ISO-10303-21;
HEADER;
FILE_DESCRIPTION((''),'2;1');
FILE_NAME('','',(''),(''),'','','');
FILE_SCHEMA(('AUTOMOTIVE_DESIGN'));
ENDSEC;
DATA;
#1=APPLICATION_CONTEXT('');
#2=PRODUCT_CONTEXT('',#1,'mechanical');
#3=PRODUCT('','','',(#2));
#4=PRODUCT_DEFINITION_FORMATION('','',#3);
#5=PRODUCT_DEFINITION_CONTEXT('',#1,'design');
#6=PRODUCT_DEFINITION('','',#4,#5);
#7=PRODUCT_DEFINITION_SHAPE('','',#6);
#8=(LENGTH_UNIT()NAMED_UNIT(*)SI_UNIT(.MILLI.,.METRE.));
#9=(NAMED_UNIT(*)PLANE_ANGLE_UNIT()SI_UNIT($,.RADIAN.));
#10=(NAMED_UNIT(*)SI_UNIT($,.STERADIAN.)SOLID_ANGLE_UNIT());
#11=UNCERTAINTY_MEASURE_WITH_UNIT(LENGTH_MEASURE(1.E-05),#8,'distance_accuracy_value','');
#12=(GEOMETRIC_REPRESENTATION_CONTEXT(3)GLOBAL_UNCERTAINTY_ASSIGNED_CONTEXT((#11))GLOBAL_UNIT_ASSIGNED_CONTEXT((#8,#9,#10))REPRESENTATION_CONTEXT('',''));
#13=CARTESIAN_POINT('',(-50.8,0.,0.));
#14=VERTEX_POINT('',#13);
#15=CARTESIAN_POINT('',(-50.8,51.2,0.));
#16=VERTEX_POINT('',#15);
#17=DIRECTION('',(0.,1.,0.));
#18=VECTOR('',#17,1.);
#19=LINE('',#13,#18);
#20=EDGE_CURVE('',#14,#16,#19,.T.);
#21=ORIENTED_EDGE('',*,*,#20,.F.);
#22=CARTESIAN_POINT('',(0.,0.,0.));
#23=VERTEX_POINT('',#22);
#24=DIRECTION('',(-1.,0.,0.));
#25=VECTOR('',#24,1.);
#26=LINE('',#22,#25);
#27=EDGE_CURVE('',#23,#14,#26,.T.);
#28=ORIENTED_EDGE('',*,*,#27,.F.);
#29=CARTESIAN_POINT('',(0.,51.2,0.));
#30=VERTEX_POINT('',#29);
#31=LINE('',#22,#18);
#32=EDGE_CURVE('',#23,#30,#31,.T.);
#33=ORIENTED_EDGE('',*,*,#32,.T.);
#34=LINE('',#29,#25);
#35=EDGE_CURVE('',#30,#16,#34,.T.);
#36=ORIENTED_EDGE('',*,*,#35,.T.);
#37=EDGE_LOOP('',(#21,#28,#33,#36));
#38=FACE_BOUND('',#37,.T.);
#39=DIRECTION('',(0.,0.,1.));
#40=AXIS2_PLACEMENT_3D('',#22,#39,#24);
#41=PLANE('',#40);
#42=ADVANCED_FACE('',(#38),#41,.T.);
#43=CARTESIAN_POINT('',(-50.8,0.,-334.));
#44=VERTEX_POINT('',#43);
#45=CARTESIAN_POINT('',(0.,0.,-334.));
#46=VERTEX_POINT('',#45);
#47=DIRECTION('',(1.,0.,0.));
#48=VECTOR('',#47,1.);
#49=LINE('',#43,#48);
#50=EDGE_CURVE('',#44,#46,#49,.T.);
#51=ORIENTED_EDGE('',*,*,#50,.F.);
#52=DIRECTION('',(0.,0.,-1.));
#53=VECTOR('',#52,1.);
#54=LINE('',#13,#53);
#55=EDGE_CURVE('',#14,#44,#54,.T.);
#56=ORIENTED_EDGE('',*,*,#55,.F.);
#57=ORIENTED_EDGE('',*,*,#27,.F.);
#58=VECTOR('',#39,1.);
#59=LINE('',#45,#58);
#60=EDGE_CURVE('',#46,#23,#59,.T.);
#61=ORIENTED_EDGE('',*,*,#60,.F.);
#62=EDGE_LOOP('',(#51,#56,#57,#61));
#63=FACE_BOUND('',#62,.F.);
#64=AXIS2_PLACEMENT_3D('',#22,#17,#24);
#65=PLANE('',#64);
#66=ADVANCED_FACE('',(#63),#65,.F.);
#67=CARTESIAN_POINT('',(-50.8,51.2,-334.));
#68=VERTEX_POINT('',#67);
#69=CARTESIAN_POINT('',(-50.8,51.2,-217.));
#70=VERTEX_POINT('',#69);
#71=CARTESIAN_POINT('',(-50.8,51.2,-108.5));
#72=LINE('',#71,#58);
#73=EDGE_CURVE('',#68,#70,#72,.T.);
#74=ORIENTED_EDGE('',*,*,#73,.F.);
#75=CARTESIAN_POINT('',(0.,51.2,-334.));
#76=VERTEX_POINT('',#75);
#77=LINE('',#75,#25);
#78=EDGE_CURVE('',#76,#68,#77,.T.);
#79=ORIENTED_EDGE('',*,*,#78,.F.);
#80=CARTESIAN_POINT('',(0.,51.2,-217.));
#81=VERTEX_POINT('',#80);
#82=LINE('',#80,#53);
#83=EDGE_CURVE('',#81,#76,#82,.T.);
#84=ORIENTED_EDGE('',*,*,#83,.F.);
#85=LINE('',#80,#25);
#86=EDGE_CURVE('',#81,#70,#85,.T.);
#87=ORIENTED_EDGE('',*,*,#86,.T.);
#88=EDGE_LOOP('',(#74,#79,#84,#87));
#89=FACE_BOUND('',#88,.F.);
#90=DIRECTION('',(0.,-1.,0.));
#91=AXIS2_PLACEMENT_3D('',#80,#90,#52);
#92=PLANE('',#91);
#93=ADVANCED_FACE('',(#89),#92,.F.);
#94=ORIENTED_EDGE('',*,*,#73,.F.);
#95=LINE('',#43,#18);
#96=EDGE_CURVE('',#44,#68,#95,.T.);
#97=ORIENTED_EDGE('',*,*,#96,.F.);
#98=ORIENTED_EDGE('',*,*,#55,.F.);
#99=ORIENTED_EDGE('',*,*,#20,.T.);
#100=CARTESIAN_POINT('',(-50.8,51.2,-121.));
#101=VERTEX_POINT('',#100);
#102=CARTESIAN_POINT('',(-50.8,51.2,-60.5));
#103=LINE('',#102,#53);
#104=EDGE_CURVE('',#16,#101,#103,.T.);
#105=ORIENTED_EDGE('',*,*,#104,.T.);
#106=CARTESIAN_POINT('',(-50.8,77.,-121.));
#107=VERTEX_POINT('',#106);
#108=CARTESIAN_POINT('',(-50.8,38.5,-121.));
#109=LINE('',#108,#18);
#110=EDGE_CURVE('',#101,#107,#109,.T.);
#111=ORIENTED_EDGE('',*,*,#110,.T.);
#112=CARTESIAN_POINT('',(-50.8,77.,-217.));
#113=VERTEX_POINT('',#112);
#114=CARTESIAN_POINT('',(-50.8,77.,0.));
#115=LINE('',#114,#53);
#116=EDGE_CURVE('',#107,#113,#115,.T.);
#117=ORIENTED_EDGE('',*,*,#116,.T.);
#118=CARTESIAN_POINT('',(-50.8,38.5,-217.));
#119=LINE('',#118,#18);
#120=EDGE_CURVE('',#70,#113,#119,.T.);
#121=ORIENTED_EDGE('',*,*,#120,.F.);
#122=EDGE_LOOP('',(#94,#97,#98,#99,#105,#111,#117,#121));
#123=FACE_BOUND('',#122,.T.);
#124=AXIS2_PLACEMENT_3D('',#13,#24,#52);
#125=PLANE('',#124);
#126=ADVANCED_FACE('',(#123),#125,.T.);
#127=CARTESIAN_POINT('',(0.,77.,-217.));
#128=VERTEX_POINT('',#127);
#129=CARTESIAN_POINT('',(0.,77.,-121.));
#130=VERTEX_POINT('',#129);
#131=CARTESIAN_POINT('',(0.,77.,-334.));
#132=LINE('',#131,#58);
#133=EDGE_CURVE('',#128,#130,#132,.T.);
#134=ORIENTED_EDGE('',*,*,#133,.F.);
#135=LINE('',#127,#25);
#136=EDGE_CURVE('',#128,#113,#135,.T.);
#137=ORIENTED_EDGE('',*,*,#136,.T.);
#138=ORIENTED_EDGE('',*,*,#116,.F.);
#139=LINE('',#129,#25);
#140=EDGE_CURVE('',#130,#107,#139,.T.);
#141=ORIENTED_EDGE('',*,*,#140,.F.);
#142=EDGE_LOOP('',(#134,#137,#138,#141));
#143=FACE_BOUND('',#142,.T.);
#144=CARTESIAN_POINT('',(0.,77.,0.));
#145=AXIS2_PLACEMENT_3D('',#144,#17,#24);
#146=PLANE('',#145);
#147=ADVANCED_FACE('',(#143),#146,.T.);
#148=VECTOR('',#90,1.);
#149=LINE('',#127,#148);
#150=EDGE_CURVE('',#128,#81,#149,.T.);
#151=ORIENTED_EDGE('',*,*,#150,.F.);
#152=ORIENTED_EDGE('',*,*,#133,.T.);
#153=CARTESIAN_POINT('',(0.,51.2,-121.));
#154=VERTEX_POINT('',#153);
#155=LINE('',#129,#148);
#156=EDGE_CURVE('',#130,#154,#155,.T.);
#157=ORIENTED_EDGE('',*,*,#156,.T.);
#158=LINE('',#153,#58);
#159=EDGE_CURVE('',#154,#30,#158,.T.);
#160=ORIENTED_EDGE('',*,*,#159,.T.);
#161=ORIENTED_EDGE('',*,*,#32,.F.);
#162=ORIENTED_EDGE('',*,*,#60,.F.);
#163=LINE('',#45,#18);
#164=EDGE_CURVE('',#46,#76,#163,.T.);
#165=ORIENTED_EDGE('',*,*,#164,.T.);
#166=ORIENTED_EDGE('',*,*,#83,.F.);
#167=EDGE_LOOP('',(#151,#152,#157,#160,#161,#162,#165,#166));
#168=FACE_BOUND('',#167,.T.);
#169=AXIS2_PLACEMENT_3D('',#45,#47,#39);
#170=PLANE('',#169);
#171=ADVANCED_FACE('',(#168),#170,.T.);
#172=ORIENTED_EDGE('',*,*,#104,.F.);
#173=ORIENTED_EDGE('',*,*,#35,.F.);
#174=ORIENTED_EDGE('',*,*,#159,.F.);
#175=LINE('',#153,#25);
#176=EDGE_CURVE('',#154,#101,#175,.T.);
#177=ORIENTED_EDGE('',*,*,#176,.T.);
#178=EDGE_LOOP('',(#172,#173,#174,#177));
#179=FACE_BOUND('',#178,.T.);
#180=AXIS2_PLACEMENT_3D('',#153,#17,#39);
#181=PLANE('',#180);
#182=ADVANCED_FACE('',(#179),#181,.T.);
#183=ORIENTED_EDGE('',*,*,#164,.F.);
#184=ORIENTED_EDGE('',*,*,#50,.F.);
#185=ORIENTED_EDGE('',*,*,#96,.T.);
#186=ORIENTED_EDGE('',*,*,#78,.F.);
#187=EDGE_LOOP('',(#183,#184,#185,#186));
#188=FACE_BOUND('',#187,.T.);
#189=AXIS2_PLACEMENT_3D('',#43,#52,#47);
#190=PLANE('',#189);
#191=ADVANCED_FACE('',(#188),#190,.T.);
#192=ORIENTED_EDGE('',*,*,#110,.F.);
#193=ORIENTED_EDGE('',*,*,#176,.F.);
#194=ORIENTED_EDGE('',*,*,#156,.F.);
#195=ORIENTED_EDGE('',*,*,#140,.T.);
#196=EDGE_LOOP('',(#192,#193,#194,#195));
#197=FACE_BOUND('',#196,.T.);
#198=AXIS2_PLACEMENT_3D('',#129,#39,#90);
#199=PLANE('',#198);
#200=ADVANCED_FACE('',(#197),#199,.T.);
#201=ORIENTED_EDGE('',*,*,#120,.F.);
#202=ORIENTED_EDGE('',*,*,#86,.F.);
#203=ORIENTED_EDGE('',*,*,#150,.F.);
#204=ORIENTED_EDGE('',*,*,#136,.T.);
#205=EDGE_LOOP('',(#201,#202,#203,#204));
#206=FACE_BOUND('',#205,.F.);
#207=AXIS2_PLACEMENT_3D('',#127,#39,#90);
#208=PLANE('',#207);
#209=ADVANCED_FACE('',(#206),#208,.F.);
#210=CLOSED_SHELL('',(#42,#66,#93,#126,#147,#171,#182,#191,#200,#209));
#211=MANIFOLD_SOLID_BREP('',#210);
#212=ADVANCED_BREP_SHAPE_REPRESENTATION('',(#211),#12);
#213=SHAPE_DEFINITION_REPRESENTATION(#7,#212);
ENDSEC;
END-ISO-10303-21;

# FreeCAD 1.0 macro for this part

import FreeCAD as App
import Part
import Sketcher

V = App.Vector

doc = App.newDocument("Part")
body = doc.addObject("PartDesign::Body", "Body")

sketch1 = body.newObject("Sketcher::SketchObject", "Sketch")
sketch1.AttachmentSupport = (doc.getObject("XZ_Plane"), [""])
sketch1.MapMode = "FlatFace"
sketch1.addGeometry([
    Part.LineSegment(V(-51, 0, 0), V(0, 0, 0)),
    Part.LineSegment(V(0, 0, 0), V(0, -334, 0)),
    Part.LineSegment(V(0, -334, 0), V(-51, -334, 0)),
    Part.LineSegment(V(-51, -334, 0), V(-51, 0, 0)),
], False)
sketch1.addConstraint([
    Sketcher.Constraint("Coincident", 0, 2, 1, 1),
    Sketcher.Constraint("Coincident", 1, 2, 2, 1),
    Sketcher.Constraint("Coincident", 2, 2, 3, 1),
    Sketcher.Constraint("Coincident", 3, 2, 0, 1),
    Sketcher.Constraint("Horizontal", 0),
    Sketcher.Constraint("Vertical", 1),
    Sketcher.Constraint("Horizontal", 2),
    Sketcher.Constraint("Vertical", 3),
    Sketcher.Constraint("Coincident", 0, 2, -1, 1),
    Sketcher.Constraint("DistanceY", 1, 2, 1, 1, 334.0),
    Sketcher.Constraint("DistanceX", 0, 1, 0, 2, 50.8),
])
pad1 = body.newObject("PartDesign::Pad", "Pad")
pad1.Profile = sketch1
pad1.Length = 77
pad1.Reversed = True

sketch2 = body.newObject("Sketcher::SketchObject", "Sketch001")
sketch2.AttachmentSupport = (doc.getObject("YZ_Plane"), [""])
sketch2.MapMode = "FlatFace"
sketch2.addGeometry([
    Part.LineSegment(V(77, -334, 0), V(77, -217, 0)),
    Part.LineSegment(V(77, -217, 0), V(51, -217, 0)),
    Part.LineSegment(V(51, -217, 0), V(51, -334, 0)),
    Part.LineSegment(V(51, -334, 0), V(77, -334, 0)),
    Part.LineSegment(V(77, -121, 0), V(77, 0, 0)),
    Part.LineSegment(V(77, 0, 0), V(51, 0, 0)),
    Part.LineSegment(V(51, 0, 0), V(51, -121, 0)),
    Part.LineSegment(V(51, -121, 0), V(77, -121, 0)),
], False)
sketch2.addConstraint([
    Sketcher.Constraint("Coincident", 0, 2, 1, 1),
    Sketcher.Constraint("Coincident", 1, 2, 2, 1),
    Sketcher.Constraint("Coincident", 2, 2, 3, 1),
    Sketcher.Constraint("Coincident", 3, 2, 0, 1),
    Sketcher.Constraint("Coincident", 4, 2, 5, 1),
    Sketcher.Constraint("Coincident", 5, 2, 6, 1),
    Sketcher.Constraint("Coincident", 6, 2, 7, 1),
    Sketcher.Constraint("Coincident", 7, 2, 4, 1),
    Sketcher.Constraint("Vertical", 0),
    Sketcher.Constraint("Horizontal", 1),
    Sketcher.Constraint("Vertical", 2),
    Sketcher.Constraint("Horizontal", 3),
    Sketcher.Constraint("Vertical", 4),
    Sketcher.Constraint("Horizontal", 5),
    Sketcher.Constraint("Vertical", 6),
    Sketcher.Constraint("Horizontal", 7),
    Sketcher.Constraint("PointOnObject", 4, 2, -1),
    Sketcher.Constraint("Vertical", 3, 2, 4, 2),
    Sketcher.Constraint("Vertical", 2, 2, 5, 2),
    Sketcher.Constraint("DistanceY", 0, 1, 0, 2, 117.0),
    Sketcher.Constraint("DistanceX", 1, 2, 1, 1, 25.8),
    Sketcher.Constraint("DistanceY", 1, 2, 6, 2, 96.0),
    Sketcher.Constraint("DistanceY", 4, 1, 4, 2, 121.0),
    Sketcher.Constraint("DistanceX", -1, 1, 0, 2, 77.0),
])
pocket1 = body.newObject("PartDesign::Pocket", "Pocket")
pocket1.Profile = sketch2
pocket1.Length = 52.8

doc.recompute()
